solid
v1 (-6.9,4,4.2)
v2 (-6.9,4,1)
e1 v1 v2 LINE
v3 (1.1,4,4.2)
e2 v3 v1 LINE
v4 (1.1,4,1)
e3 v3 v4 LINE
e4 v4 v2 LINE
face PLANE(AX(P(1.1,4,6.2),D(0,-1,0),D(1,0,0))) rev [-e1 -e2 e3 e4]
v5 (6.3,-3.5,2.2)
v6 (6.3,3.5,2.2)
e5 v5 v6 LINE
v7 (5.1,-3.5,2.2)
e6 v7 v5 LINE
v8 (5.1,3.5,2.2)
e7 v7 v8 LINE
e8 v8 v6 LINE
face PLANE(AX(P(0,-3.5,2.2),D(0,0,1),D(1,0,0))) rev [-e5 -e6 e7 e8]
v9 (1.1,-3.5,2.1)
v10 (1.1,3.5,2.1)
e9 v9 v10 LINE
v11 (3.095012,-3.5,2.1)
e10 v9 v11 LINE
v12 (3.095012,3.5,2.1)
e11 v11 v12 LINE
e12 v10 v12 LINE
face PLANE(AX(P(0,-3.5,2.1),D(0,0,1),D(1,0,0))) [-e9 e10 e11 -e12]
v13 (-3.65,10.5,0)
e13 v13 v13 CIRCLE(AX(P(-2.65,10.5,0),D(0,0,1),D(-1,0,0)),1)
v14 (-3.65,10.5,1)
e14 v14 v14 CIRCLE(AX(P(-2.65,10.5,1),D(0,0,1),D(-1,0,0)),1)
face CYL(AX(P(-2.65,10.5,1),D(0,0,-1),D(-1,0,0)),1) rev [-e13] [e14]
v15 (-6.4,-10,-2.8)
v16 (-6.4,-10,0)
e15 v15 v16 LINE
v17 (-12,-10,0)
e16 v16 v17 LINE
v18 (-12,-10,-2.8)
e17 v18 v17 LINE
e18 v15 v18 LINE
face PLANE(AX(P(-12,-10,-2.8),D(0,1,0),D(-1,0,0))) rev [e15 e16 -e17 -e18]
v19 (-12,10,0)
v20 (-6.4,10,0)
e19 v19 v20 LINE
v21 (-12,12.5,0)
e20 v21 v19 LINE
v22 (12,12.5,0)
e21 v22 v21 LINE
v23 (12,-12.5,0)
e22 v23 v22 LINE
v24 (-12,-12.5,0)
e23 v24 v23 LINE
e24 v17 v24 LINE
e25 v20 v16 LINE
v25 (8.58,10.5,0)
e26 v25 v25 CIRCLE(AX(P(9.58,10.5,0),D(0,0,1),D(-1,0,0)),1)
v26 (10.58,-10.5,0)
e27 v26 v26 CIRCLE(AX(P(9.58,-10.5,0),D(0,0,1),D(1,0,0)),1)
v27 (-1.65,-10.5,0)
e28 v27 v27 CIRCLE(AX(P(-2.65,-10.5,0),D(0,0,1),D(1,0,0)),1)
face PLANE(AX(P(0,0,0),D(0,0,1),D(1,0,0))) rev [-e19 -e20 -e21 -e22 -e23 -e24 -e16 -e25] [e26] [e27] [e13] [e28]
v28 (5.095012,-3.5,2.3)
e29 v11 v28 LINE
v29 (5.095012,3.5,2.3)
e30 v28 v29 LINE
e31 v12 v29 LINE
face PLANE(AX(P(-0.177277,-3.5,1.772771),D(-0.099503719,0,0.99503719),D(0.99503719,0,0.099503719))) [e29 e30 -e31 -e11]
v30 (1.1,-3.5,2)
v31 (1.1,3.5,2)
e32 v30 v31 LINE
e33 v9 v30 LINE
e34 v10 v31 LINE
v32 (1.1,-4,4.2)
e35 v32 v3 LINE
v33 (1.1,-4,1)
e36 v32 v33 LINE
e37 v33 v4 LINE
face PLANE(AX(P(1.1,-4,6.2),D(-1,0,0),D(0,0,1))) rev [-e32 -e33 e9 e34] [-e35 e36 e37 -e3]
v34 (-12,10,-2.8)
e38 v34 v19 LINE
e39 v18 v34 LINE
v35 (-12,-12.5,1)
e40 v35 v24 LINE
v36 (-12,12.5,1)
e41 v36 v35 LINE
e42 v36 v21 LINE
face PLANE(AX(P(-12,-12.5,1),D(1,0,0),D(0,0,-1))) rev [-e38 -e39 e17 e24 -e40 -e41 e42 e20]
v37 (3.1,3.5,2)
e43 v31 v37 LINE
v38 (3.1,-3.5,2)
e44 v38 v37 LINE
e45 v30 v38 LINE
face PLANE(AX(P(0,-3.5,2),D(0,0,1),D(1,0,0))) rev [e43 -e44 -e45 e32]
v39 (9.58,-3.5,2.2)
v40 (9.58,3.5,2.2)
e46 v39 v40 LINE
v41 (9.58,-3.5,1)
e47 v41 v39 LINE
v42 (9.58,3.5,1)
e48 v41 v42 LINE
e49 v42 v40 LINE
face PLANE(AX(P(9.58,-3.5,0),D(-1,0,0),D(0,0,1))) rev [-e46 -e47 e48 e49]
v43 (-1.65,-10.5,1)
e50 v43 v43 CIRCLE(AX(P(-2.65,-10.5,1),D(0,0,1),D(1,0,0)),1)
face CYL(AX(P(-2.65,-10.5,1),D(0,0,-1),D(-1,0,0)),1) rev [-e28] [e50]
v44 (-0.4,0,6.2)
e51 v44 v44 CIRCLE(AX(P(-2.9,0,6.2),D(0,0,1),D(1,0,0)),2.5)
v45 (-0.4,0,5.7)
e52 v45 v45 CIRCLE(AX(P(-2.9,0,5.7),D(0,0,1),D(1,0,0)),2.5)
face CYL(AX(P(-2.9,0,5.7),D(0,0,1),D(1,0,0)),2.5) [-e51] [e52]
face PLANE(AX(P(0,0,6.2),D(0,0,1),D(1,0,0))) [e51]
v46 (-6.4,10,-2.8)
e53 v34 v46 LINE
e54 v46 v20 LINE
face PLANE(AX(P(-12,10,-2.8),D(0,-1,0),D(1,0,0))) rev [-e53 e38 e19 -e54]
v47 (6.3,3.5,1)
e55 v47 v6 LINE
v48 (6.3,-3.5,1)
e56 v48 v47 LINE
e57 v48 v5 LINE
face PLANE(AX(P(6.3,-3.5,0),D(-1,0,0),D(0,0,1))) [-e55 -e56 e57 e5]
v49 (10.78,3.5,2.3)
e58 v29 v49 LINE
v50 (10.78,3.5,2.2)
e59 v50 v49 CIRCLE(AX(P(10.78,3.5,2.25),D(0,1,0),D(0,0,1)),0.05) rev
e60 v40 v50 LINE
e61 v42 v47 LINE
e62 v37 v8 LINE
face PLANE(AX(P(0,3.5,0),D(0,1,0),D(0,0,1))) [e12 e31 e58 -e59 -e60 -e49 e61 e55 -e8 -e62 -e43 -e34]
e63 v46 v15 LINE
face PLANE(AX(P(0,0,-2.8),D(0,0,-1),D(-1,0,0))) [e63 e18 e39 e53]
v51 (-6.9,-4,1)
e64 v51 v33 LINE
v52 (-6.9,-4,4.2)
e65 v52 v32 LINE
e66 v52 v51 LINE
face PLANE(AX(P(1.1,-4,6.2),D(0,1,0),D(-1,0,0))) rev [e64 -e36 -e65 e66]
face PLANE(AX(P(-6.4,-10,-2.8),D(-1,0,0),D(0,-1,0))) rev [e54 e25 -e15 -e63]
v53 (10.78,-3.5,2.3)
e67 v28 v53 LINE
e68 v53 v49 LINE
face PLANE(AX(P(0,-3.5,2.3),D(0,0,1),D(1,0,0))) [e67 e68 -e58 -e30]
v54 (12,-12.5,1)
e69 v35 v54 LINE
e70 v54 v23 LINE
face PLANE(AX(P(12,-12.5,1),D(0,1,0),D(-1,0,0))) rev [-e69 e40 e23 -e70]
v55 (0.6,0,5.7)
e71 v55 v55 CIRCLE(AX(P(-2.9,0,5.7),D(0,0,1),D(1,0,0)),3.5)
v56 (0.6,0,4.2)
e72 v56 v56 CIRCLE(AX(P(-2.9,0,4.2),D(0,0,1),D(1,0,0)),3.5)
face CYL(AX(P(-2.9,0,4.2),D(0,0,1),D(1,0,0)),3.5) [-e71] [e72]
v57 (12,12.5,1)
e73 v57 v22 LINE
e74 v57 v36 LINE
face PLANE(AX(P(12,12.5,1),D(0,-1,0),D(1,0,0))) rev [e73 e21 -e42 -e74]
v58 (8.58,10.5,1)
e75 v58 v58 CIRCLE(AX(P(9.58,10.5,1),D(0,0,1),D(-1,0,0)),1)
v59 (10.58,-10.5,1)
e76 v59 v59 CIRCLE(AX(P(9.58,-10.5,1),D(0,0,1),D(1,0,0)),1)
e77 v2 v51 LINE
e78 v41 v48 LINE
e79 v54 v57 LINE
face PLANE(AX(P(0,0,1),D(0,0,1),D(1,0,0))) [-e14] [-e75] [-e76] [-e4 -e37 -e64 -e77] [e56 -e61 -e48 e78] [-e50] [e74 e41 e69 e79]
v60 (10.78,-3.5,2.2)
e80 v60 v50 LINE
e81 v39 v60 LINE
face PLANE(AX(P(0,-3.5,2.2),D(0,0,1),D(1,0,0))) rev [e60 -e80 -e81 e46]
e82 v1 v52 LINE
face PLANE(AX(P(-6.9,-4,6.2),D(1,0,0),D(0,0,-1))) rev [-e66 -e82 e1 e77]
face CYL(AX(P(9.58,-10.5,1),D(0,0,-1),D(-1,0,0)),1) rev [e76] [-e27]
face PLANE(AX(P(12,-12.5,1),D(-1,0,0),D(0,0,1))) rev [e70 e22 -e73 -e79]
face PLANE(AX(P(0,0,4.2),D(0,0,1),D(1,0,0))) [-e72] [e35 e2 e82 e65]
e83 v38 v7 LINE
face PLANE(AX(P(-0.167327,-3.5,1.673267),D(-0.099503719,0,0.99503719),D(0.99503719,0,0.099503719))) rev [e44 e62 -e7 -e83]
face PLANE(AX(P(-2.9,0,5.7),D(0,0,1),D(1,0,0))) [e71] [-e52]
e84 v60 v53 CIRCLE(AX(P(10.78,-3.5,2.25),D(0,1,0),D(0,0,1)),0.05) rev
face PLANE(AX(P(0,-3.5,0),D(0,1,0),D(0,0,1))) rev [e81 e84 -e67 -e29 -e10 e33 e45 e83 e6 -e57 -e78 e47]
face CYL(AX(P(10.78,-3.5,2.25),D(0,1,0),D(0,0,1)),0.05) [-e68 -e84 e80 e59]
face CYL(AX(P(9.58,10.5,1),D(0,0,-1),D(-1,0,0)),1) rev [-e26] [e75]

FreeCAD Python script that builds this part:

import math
import FreeCAD as App
import Part
import Sketcher
Q = App.Units.Quantity

doc = App.newDocument("Part")
params = doc.addObject("Spreadsheet::Sheet", "Params")
for row, (alias, value) in enumerate([
    ("sketch1_diameter", "2 mm"),
    ("sketch1_width", "24 mm"),
    ("sketch1_height", "25 mm"),
    ("pad1_length", "1 mm"),
    ("sketch2_width", "8 mm"),
    ("pad2_length", "5.2 mm"),
    ("sketch3_diameter", "7 mm"),
    ("sketch3_width", "8 mm"),
    ("pocket1_length", "2 mm"),
    ("sketch4_diameter", "7 mm"),
    ("sketch4_diameter2", "5 mm"),
    ("pocket2_length", "0.5 mm"),
    ("sketch5_width", "2 mm"),
    ("sketch5_radius", "0.05 mm"),
    ("sketch5_width2", "1.2 mm"),
    ("sketch5_width3", "3.28 mm"),
    ("pad3_length", "3.5 mm"),
    ("pad3_length2", "3.5 mm"),
    ("sketch6_height", "20 mm"),
    ("sketch6_width", "5.6 mm"),
    ("pad4_length", "2.8 mm"),
], start=1):
    params.set(f"A{row}", alias)
    params.set(f"B{row}", "=" + value)
    params.setAlias(f"B{row}", alias)

body = doc.addObject("PartDesign::Body", "Body")

# Sketch on XY plane
sketch1 = body.newObject("Sketcher::SketchObject", "Sketch")
sketch1.AttachmentSupport = (doc.getObject("XY_Plane"), [""])
sketch1.MapMode = "FlatFace"
sketch1.addGeometry([
    Part.LineSegment(App.Vector(-12, 12.5, 0), App.Vector(-12, -12.5, 0)),  # 0
    Part.LineSegment(App.Vector(-12, -12.5, 0), App.Vector(12, -12.5, 0)),  # 1
    Part.LineSegment(App.Vector(12, -12.5, 0), App.Vector(12, 12.5, 0)),  # 2
    Part.LineSegment(App.Vector(12, 12.5, 0), App.Vector(-12, 12.5, 0)),  # 3
    Part.Circle(App.Vector(-2.6, -10.5, 0), App.Vector(0, 0, 1), 1),  # 4
    Part.Circle(App.Vector(9.6, -10.5, 0), App.Vector(0, 0, 1), 1),  # 5
    Part.Circle(App.Vector(-2.6, 10.5, 0), App.Vector(0, 0, 1), 1),  # 6
    Part.Circle(App.Vector(9.6, 10.5, 0), App.Vector(0, 0, 1), 1),  # 7
], False)
sketch1.addConstraint([
    Sketcher.Constraint("Coincident", 0, 2, 1, 1),
    Sketcher.Constraint("Coincident", 1, 2, 2, 1),
    Sketcher.Constraint("Coincident", 2, 2, 3, 1),
    Sketcher.Constraint("Coincident", 3, 2, 0, 1),
    Sketcher.Constraint("Vertical", 0),
    Sketcher.Constraint("Horizontal", 1),
    Sketcher.Constraint("Vertical", 2),
    Sketcher.Constraint("Horizontal", 3),
    Sketcher.Constraint("Equal", 4, 5),
    Sketcher.Constraint("Equal", 5, 6),
    Sketcher.Constraint("Equal", 6, 7),
    Sketcher.Constraint("Symmetric", 0, 2, 2, 2, -1, 1),
    Sketcher.Constraint("Symmetric", 4, 3, 6, 3, -1),
    Sketcher.Constraint("Symmetric", 5, 3, 7, 3, -1),
    Sketcher.Constraint("Horizontal", 4, 3, 5, 3),
    Sketcher.Constraint("Diameter", 4, Q("2 mm")),
    Sketcher.Constraint("DistanceX", 1, 1, 1, 2, Q("24 mm")),
    Sketcher.Constraint("DistanceY", 0, 2, 0, 1, Q("25 mm")),
    Sketcher.Constraint("DistanceY", 4, 3, 6, 3, Q("21 mm")),
    Sketcher.Constraint("DistanceX", 4, 3, -1, 1, Q("2.65 mm")),
    Sketcher.Constraint("DistanceX", -1, 1, 5, 3, Q("9.58 mm")),
])
sketch1.setExpression("Constraints[15]", "Params.sketch1_diameter")
sketch1.setExpression("Constraints[16]", "Params.sketch1_width")
sketch1.setExpression("Constraints[17]", "Params.sketch1_height")
pad1 = body.newObject("PartDesign::Pad", "Pad")
pad1.Profile = sketch1
pad1.setExpression("Length", "Params.pad1_length")

# Sketch on XY plane
sketch2 = body.newObject("Sketcher::SketchObject", "Sketch001")
sketch2.AttachmentSupport = (doc.getObject("XY_Plane"), [""])
sketch2.MapMode = "FlatFace"
sketch2.AttachmentOffset = App.Placement(App.Vector(0, 0, 1), App.Rotation())
sketch2.addGeometry([
    Part.LineSegment(App.Vector(-7, 4, 0), App.Vector(-7, -4, 0)),
    Part.LineSegment(App.Vector(-7, -4, 0), App.Vector(1, -4, 0)),
    Part.LineSegment(App.Vector(1, -4, 0), App.Vector(1, 4, 0)),
    Part.LineSegment(App.Vector(1, 4, 0), App.Vector(-7, 4, 0)),
], False)
sketch2.addConstraint([
    Sketcher.Constraint("Coincident", 0, 2, 1, 1),
    Sketcher.Constraint("Coincident", 1, 2, 2, 1),
    Sketcher.Constraint("Coincident", 2, 2, 3, 1),
    Sketcher.Constraint("Coincident", 3, 2, 0, 1),
    Sketcher.Constraint("Vertical", 0),
    Sketcher.Constraint("Horizontal", 1),
    Sketcher.Constraint("Vertical", 2),
    Sketcher.Constraint("Horizontal", 3),
    Sketcher.Constraint("Equal", 3, 0),
    Sketcher.Constraint("DistanceX", 1, 1, 1, 2, Q("8 mm")),
    Sketcher.Constraint("DistanceY", 0, 2, -1, 1, Q("4 mm")),
    Sketcher.Constraint("DistanceX", 0, 2, -1, 1, Q("6.9 mm")),
])
sketch2.setExpression("Constraints[9]", "Params.sketch2_width")
pad2 = body.newObject("PartDesign::Pad", "Pad001")
pad2.Profile = sketch2
pad2.setExpression("Length", "Params.pad2_length")

# Sketch on XY plane
sketch3 = body.newObject("Sketcher::SketchObject", "Sketch002")
sketch3.AttachmentSupport = (doc.getObject("XY_Plane"), [""])
sketch3.MapMode = "FlatFace"
sketch3.AttachmentOffset = App.Placement(App.Vector(0, 0, 6.2), App.Rotation())
sketch3.addGeometry([
    Part.LineSegment(App.Vector(-6.9, 4, 0), App.Vector(-6.9, -4, 0)),  # 0
    Part.LineSegment(App.Vector(-6.9, -4, 0), App.Vector(1.1, -4, 0)),  # 1
    Part.LineSegment(App.Vector(1.1, -4, 0), App.Vector(1.1, 4, 0)),  # 2
    Part.LineSegment(App.Vector(1.1, 4, 0), App.Vector(-6.9, 4, 0)),  # 3
    Part.Circle(App.Vector(-2.9, 0, 0), App.Vector(0, 0, 1), 3.5),  # 4
], False)
sketch3.addConstraint([
    Sketcher.Constraint("Coincident", 0, 2, 1, 1),
    Sketcher.Constraint("Coincident", 1, 2, 2, 1),
    Sketcher.Constraint("Coincident", 2, 2, 3, 1),
    Sketcher.Constraint("Coincident", 3, 2, 0, 1),
    Sketcher.Constraint("Vertical", 0),
    Sketcher.Constraint("Horizontal", 1),
    Sketcher.Constraint("Vertical", 2),
    Sketcher.Constraint("Horizontal", 3),
    Sketcher.Constraint("PointOnObject", 4, 3, -1),
    Sketcher.Constraint("Equal", 3, 0),
    Sketcher.Constraint("Diameter", 4, Q("7 mm")),
    Sketcher.Constraint("DistanceX", 1, 1, 1, 2, Q("8 mm")),
    Sketcher.Constraint("DistanceY", 0, 2, -1, 1, Q("4 mm")),
    Sketcher.Constraint("DistanceX", 0, 2, 4, 3, Q("4 mm")),
    Sketcher.Constraint("DistanceX", 4, 3, -1, 1, Q("2.9 mm")),
])
sketch3.setExpression("Constraints[10]", "Params.sketch3_diameter")
sketch3.setExpression("Constraints[11]", "Params.sketch3_width")
pocket1 = body.newObject("PartDesign::Pocket", "Pocket")
pocket1.Profile = sketch3
pocket1.setExpression("Length", "Params.pocket1_length")

# Sketch on XY plane
sketch4 = body.newObject("Sketcher::SketchObject", "Sketch003")
sketch4.AttachmentSupport = (doc.getObject("XY_Plane"), [""])
sketch4.MapMode = "FlatFace"
sketch4.AttachmentOffset = App.Placement(App.Vector(0, 0, 6.2), App.Rotation())
sketch4.addGeometry([
    Part.Circle(App.Vector(-2.9, 0, 0), App.Vector(0, 0, 1), 3.5),
    Part.Circle(App.Vector(-2.9, 0, 0), App.Vector(0, 0, 1), 2.5),
], False)
sketch4.addConstraint([
    Sketcher.Constraint("Coincident", 1, 3, 0, 3),
    Sketcher.Constraint("PointOnObject", 0, 3, -1),
    Sketcher.Constraint("Diameter", 0, Q("7 mm")),
    Sketcher.Constraint("Diameter", 1, Q("5 mm")),
    Sketcher.Constraint("DistanceX", 0, 3, -1, 1, Q("2.9 mm")),
])
sketch4.setExpression("Constraints[2]", "Params.sketch4_diameter")
sketch4.setExpression("Constraints[3]", "Params.sketch4_diameter2")
pocket2 = body.newObject("PartDesign::Pocket", "Pocket001")
pocket2.Profile = sketch4
pocket2.setExpression("Length", "Params.pocket2_length")

# Sketch on XZ plane
sketch5 = body.newObject("Sketcher::SketchObject", "Sketch004")
sketch5.AttachmentSupport = (doc.getObject("XZ_Plane"), [""])
sketch5.MapMode = "FlatFace"
sketch5.addGeometry([
    Part.LineSegment(App.Vector(6.3, 1, 0), App.Vector(6.3, 2.2, 0)),  # 0
    Part.LineSegment(App.Vector(6.3, 2.2, 0), App.Vector(5.1, 2.2, 0)),  # 1
    Part.LineSegment(App.Vector(5.1, 2.2, 0), App.Vector(3.1, 2, 0)),  # 2
    Part.LineSegment(App.Vector(3.1, 2, 0), App.Vector(1.1, 2, 0)),  # 3
    Part.LineSegment(App.Vector(1.1, 2, 0), App.Vector(1.1, 2.1, 0)),  # 4
    Part.LineSegment(App.Vector(1.1, 2.1, 0), App.Vector(3.1, 2.1, 0)),  # 5
    Part.LineSegment(App.Vector(3.1, 2.1, 0), App.Vector(5.1, 2.3, 0)),  # 6
    Part.LineSegment(App.Vector(5.1, 2.3, 0), App.Vector(10.78, 2.3, 0)),  # 7
    Part.ArcOfCircle(Part.Circle(App.Vector(10.78, 2.25, 0), App.Vector(0, 0, 1), 0.05), math.radians(-90), math.radians(90)),  # 8
    Part.LineSegment(App.Vector(10.78, 2.2, 0), App.Vector(9.58, 2.2, 0)),  # 9
    Part.LineSegment(App.Vector(9.58, 2.2, 0), App.Vector(9.58, 1, 0)),  # 10
    Part.LineSegment(App.Vector(9.58, 1, 0), App.Vector(6.3, 1, 0)),  # 11
], False)
sketch5.addConstraint([
    Sketcher.Constraint("Coincident", 0, 2, 1, 1),
    Sketcher.Constraint("Coincident", 1, 2, 2, 1),
    Sketcher.Constraint("Coincident", 2, 2, 3, 1),
    Sketcher.Constraint("Coincident", 3, 2, 4, 1),
    Sketcher.Constraint("Coincident", 4, 2, 5, 1),
    Sketcher.Constraint("Coincident", 5, 2, 6, 1),
    Sketcher.Constraint("Coincident", 6, 2, 7, 1),
    Sketcher.Constraint("Tangent", 7, 2, 8, 2),
    Sketcher.Constraint("Tangent", 8, 1, 9, 1),
    Sketcher.Constraint("Coincident", 9, 2, 10, 1),
    Sketcher.Constraint("Coincident", 10, 2, 11, 1),
    Sketcher.Constraint("Coincident", 11, 2, 0, 1),
    Sketcher.Constraint("Vertical", 0),
    Sketcher.Constraint("Horizontal", 1),
    Sketcher.Constraint("Horizontal", 3),
    Sketcher.Constraint("Vertical", 4),
    Sketcher.Constraint("Horizontal", 5),
    Sketcher.Constraint("Horizontal", 7),
    Sketcher.Constraint("Horizontal", 9),
    Sketcher.Constraint("Vertical", 10),
    Sketcher.Constraint("Horizontal", 11),
    Sketcher.Constraint("Parallel", 2, 6),
    Sketcher.Constraint("Horizontal", 1, 2, 8, 1),
    Sketcher.Constraint("Equal", 1, 9),
    Sketcher.Constraint("Equal", 9, 0),
    Sketcher.Constraint("Equal", 2, 6),
    Sketcher.Constraint("DistanceX", 3, 2, 3, 1, Q("2 mm")),
    Sketcher.Constraint("Radius", 8, Q("0.05 mm")),
    Sketcher.Constraint("DistanceX", 1, 2, 1, 1, Q("1.2 mm")),
    Sketcher.Constraint("DistanceY", -1, 1, 2, 2, Q("2 mm")),
    Sketcher.Constraint("DistanceY", -1, 1, 10, 2, Q("1 mm")),
    Sketcher.Constraint("DistanceX", 2, 2, 1, 2, Q("2 mm")),
    Sketcher.Constraint("DistanceX", 11, 2, 11, 1, Q("3.28 mm")),
    Sketcher.Constraint("DistanceX", -1, 1, 0, 2, Q("6.3 mm")),
    Sketcher.Constraint("DistanceX", 5, 1, 5, 2, Q("1.995012 mm")),
])
sketch5.setExpression("Constraints[26]", "Params.sketch5_width")
sketch5.setExpression("Constraints[27]", "Params.sketch5_radius")
sketch5.setExpression("Constraints[28]", "Params.sketch5_width2")
sketch5.setExpression("Constraints[32]", "Params.sketch5_width3")
pad3 = body.newObject("PartDesign::Pad", "Pad002")
pad3.Profile = sketch5
pad3.Type = "TwoLengths"
pad3.setExpression("Length", "Params.pad3_length")
pad3.setExpression("Length2", "Params.pad3_length2")
pad3.Reversed = True

# Sketch on XY plane
sketch6 = body.newObject("Sketcher::SketchObject", "Sketch005")
sketch6.AttachmentSupport = (doc.getObject("XY_Plane"), [""])
sketch6.MapMode = "FlatFace"
sketch6.addGeometry([
    Part.LineSegment(App.Vector(-6, 10, 0), App.Vector(-6, -10, 0)),
    Part.LineSegment(App.Vector(-6, -10, 0), App.Vector(-12, -10, 0)),
    Part.LineSegment(App.Vector(-12, -10, 0), App.Vector(-12, 10, 0)),
    Part.LineSegment(App.Vector(-12, 10, 0), App.Vector(-6, 10, 0)),
], False)
sketch6.addConstraint([
    Sketcher.Constraint("Coincident", 0, 2, 1, 1),
    Sketcher.Constraint("Coincident", 1, 2, 2, 1),
    Sketcher.Constraint("Coincident", 2, 2, 3, 1),
    Sketcher.Constraint("Coincident", 3, 2, 0, 1),
    Sketcher.Constraint("Vertical", 0),
    Sketcher.Constraint("Horizontal", 1),
    Sketcher.Constraint("Vertical", 2),
    Sketcher.Constraint("Horizontal", 3),
    Sketcher.Constraint("DistanceY", 0, 2, 0, 1, Q("20 mm")),
    Sketcher.Constraint("DistanceX", 1, 2, 1, 1, Q("5.6 mm")),
    Sketcher.Constraint("DistanceY", 0, 2, -1, 1, Q("10 mm")),
    Sketcher.Constraint("DistanceX", 1, 2, -1, 1, Q("12 mm")),
])
sketch6.setExpression("Constraints[8]", "Params.sketch6_height")
sketch6.setExpression("Constraints[9]", "Params.sketch6_width")
pad4 = body.newObject("PartDesign::Pad", "Pad003")
pad4.Profile = sketch6
pad4.setExpression("Length", "Params.pad4_length")
pad4.Reversed = True

doc.recompute()
